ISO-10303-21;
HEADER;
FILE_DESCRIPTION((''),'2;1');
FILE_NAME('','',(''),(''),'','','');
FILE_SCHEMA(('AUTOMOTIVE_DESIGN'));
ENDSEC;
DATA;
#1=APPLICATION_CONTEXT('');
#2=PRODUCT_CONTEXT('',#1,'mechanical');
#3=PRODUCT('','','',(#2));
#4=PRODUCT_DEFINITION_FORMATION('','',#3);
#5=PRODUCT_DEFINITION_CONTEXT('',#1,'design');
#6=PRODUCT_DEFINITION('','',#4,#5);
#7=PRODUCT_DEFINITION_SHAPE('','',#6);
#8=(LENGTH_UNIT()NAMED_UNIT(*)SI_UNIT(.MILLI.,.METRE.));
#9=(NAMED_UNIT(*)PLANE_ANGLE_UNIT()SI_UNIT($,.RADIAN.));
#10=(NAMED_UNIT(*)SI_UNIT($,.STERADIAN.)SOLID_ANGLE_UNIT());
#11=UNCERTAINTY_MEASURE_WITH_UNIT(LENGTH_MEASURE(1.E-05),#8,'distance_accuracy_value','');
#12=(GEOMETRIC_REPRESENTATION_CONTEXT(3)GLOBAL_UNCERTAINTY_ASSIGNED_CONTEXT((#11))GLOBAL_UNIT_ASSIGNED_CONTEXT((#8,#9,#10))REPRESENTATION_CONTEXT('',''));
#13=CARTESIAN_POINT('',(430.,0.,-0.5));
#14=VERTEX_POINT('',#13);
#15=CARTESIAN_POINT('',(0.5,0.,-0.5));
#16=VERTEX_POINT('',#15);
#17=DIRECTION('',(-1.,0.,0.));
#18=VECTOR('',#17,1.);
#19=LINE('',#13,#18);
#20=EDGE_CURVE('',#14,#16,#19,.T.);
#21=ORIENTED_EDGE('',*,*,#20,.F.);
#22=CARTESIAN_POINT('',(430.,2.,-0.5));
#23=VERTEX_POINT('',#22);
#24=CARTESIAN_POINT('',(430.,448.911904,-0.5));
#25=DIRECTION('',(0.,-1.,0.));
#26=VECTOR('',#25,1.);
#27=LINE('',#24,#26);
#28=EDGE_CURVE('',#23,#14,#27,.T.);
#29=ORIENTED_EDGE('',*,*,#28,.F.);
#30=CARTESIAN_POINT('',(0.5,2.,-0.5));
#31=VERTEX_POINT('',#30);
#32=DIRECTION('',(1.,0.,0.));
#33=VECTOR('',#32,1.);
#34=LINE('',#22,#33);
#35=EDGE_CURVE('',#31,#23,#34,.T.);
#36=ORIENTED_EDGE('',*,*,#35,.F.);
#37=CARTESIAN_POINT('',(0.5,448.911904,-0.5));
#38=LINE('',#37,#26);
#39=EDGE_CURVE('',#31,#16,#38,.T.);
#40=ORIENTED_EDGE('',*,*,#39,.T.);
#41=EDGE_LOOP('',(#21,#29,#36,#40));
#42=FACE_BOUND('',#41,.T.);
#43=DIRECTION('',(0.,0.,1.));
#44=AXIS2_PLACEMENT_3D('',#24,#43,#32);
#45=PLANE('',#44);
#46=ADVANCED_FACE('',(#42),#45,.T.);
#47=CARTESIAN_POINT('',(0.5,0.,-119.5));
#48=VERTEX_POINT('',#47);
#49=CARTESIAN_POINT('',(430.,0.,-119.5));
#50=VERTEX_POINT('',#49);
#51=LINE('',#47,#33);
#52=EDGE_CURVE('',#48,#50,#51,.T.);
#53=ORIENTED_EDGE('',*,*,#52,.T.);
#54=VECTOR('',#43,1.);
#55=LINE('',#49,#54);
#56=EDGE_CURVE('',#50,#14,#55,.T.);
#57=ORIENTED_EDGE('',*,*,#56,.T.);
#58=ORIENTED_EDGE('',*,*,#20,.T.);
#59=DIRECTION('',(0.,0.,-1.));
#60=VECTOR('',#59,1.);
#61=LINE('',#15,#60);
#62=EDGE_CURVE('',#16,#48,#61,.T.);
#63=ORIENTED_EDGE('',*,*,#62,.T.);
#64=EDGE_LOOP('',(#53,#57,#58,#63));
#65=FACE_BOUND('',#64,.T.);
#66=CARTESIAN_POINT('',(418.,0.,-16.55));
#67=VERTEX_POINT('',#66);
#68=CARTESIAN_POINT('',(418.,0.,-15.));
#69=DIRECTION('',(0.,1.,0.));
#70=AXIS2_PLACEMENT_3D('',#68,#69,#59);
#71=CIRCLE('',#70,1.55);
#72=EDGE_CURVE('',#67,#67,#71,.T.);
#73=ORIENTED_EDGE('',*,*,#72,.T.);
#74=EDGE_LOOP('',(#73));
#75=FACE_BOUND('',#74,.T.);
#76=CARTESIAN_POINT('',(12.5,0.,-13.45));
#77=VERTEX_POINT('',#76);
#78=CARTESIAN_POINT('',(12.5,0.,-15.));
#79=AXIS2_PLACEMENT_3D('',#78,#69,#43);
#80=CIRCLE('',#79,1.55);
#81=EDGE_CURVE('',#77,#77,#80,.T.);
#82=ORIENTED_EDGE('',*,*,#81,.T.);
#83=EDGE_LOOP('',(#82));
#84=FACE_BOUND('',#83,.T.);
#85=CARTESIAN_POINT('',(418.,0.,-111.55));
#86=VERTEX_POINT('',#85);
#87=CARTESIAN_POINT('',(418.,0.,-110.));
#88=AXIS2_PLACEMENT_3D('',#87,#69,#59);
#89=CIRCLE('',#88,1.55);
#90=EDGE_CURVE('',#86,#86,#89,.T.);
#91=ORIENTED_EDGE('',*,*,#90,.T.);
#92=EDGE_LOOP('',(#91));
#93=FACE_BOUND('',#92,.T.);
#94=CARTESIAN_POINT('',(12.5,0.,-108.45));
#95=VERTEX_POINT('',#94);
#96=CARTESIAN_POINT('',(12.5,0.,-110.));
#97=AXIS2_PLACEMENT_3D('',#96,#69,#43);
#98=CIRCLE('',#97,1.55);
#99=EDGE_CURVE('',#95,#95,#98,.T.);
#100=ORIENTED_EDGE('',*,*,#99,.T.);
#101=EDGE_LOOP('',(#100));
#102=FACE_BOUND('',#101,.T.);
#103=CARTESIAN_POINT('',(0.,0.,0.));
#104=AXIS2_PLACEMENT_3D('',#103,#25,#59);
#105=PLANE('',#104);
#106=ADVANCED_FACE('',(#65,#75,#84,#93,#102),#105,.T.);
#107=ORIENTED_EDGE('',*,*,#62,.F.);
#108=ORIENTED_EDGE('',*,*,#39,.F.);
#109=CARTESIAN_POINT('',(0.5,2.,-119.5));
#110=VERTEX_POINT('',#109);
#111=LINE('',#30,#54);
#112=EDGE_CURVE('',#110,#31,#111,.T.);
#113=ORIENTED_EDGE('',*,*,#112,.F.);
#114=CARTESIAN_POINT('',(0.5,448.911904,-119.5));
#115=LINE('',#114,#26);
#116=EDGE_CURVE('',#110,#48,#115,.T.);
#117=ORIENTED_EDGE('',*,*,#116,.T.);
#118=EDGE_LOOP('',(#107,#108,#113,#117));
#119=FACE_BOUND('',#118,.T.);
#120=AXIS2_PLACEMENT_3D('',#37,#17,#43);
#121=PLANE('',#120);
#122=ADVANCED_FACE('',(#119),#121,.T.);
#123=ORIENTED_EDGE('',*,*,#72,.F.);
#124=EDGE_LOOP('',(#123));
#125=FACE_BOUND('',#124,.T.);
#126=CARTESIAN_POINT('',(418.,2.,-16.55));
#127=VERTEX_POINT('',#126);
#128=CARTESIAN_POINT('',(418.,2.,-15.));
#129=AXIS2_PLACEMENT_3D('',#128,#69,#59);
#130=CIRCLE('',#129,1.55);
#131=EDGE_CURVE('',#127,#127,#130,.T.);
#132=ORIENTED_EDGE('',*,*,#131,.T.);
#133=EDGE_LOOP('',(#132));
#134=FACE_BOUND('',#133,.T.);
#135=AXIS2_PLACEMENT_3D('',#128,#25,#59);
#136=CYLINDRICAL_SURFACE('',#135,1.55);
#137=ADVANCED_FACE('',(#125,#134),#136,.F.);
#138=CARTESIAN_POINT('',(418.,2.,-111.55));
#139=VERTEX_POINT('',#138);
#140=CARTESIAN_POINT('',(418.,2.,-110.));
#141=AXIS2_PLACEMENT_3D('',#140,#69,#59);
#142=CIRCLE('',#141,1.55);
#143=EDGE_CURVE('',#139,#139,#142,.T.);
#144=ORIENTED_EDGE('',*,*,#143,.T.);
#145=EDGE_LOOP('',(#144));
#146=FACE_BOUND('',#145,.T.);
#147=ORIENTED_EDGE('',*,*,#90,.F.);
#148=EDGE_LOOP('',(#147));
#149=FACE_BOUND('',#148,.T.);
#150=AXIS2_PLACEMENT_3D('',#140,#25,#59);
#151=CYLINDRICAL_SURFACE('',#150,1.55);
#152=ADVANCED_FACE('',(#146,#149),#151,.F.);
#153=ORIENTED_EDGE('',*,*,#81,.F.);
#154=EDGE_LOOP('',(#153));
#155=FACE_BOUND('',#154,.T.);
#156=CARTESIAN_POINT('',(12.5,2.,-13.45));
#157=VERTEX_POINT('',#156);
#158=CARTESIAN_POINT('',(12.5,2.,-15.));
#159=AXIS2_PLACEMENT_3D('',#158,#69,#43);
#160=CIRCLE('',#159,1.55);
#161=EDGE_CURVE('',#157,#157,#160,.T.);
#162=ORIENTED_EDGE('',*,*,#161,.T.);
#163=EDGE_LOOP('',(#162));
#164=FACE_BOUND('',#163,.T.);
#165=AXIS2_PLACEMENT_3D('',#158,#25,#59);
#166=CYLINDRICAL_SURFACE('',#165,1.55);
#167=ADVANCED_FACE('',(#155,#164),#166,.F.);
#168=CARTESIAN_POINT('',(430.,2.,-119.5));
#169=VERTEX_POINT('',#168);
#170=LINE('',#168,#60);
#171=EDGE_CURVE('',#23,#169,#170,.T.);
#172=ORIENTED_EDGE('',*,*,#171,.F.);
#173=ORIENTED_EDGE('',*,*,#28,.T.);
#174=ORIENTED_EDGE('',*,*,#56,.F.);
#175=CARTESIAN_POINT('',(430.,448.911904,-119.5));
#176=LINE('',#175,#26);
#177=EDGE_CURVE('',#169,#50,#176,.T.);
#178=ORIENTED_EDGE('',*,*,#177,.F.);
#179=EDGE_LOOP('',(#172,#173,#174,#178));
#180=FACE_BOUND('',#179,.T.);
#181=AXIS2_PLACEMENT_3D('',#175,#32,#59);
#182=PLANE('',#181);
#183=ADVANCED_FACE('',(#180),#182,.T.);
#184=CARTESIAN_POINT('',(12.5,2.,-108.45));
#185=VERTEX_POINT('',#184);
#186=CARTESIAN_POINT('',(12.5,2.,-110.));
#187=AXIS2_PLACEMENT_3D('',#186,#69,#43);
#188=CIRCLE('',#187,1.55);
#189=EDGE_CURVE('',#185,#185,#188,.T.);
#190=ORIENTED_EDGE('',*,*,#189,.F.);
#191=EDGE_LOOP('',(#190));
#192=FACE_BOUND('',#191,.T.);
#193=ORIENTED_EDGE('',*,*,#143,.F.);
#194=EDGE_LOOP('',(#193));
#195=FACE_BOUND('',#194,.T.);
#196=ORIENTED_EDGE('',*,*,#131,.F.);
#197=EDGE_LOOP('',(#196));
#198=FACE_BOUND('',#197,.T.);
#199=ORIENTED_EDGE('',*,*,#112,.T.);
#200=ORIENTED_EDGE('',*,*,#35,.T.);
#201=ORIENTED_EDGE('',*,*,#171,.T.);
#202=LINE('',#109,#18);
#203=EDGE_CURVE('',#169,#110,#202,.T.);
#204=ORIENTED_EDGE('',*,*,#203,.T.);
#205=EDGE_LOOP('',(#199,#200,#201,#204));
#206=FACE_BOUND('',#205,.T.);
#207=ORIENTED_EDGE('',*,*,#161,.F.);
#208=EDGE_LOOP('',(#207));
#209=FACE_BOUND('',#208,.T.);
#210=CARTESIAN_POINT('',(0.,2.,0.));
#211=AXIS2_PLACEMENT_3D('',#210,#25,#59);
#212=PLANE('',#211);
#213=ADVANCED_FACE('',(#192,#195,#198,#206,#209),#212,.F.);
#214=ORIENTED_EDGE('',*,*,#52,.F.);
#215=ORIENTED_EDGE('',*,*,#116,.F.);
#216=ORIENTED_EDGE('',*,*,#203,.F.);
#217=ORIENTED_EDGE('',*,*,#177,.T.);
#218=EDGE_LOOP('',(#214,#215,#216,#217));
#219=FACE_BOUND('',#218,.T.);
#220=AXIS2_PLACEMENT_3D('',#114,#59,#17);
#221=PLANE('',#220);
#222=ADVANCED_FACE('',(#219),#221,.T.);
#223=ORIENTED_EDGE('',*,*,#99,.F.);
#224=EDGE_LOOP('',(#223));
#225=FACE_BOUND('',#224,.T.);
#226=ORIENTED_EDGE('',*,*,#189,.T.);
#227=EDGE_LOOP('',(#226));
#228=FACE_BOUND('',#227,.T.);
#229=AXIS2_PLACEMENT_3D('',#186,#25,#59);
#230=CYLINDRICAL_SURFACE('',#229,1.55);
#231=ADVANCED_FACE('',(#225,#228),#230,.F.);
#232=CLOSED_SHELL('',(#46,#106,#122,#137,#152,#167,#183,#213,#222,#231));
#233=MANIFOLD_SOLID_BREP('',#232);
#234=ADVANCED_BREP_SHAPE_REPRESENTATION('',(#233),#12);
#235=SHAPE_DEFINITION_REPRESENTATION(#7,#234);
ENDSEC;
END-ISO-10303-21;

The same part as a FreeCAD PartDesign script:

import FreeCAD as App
import Part
import Sketcher
from FreeCAD import Vector


def add_polygon(sketch, points):
    """Adds a closed chain of lines whose ends are joined by coincident constraints."""
    first, n = sketch.GeometryCount, len(points)
    for a, b in zip(points, points[1:] + points[:1]):
        sketch.addGeometry(Part.LineSegment(App.Vector(*a, 0), App.Vector(*b, 0)), False)
    for i in range(n):
        sketch.addConstraint(Sketcher.Constraint("Coincident", first + i, 2, first + (i + 1) % n, 1))

doc = App.newDocument("Part")
body = doc.addObject("PartDesign::Body", "Body")

sketch1 = body.newObject("Sketcher::SketchObject", "Sketch")
sketch1.AttachmentSupport = (doc.getObject("XZ_Plane"), [""])
sketch1.MapMode = "FlatFace"
add_polygon(sketch1, [(0, -120), (0, 0), (430.5, 0), (430.5, -120)])
sketch1.addGeometry(Part.Circle(Vector(12.5, -15, 0), Vector(0, 0, 1), 1.6), False)
sketch1.addGeometry(Part.Circle(Vector(418, -15, 0), Vector(0, 0, 1), 1.6), False)
sketch1.addGeometry(Part.Circle(Vector(12.5, -110, 0), Vector(0, 0, 1), 1.6), False)
sketch1.addGeometry(Part.Circle(Vector(418, -110, 0), Vector(0, 0, 1), 1.6), False)
sketch1.addConstraint([
    Sketcher.Constraint("Vertical", 0),
    Sketcher.Constraint("Horizontal", 1),
    Sketcher.Constraint("Vertical", 2),
    Sketcher.Constraint("Horizontal", 3),
    Sketcher.Constraint("Coincident", 0, 2, -1, 1),
    Sketcher.Constraint("Equal", 4, 5),
    Sketcher.Constraint("Equal", 5, 6),
    Sketcher.Constraint("Equal", 6, 7),
    Sketcher.Constraint("Horizontal", 4, 3, 5, 3),
    Sketcher.Constraint("Horizontal", 6, 3, 7, 3),
    Sketcher.Constraint("Vertical", 4, 3, 6, 3),
    Sketcher.Constraint("Vertical", 5, 3, 7, 3),
    Sketcher.Constraint("Diameter", 4, 3.1),
    Sketcher.Constraint("DistanceY", 0, 1, 0, 2, 120.0),
    Sketcher.Constraint("DistanceX", 1, 1, 1, 2, 430.5),
    Sketcher.Constraint("DistanceY", 4, 3, -1, 1, 15.0),
    Sketcher.Constraint("DistanceX", -1, 1, 5, 3, 418.0),
    Sketcher.Constraint("DistanceY", 6, 3, -1, 1, 110.0),
    Sketcher.Constraint("DistanceX", 4, 3, 1, 2, 418.0),
])
pad1 = body.newObject("PartDesign::Pad", "Pad")
pad1.Profile = sketch1
pad1.Length = 2
pad1.Reversed = True

sketch2 = body.newObject("Sketcher::SketchObject", "Sketch001")
sketch2.AttachmentSupport = (doc.getObject("XZ_Plane"), [""])
sketch2.MapMode = "FlatFace"
add_polygon(sketch2, [(0, 0), (0, -120), (430, -120), (430, 0)])
add_polygon(sketch2, [(430, -120), (0, -120), (0, 0), (430, 0)])
sketch2.addConstraint([
    Sketcher.Constraint("Vertical", 0),
    Sketcher.Constraint("Horizontal", 1),
    Sketcher.Constraint("Vertical", 2),
    Sketcher.Constraint("Horizontal", 3),
    Sketcher.Constraint("Horizontal", 4),
    Sketcher.Constraint("Vertical", 5),
    Sketcher.Constraint("Horizontal", 6),
    Sketcher.Constraint("Vertical", 7),
    Sketcher.Constraint("Coincident", 3, 2, -1, 1),
    Sketcher.Constraint("DistanceY", 0, 2, 0, 1, 120.0),
    Sketcher.Constraint("DistanceY", 5, 1, 5, 2, 119.0),
    Sketcher.Constraint("DistanceX", 1, 1, 1, 2, 430.5),
    Sketcher.Constraint("DistanceX", 4, 2, 4, 1, 429.5),
    Sketcher.Constraint("DistanceX", -1, 1, 6, 2, 430.0),
    Sketcher.Constraint("DistanceY", 4, 2, -1, 1, 119.5),
])
pocket1 = body.newObject("PartDesign::Pocket", "Pocket")
pocket1.Profile = sketch2
pocket1.Length = 2

doc.recompute()
